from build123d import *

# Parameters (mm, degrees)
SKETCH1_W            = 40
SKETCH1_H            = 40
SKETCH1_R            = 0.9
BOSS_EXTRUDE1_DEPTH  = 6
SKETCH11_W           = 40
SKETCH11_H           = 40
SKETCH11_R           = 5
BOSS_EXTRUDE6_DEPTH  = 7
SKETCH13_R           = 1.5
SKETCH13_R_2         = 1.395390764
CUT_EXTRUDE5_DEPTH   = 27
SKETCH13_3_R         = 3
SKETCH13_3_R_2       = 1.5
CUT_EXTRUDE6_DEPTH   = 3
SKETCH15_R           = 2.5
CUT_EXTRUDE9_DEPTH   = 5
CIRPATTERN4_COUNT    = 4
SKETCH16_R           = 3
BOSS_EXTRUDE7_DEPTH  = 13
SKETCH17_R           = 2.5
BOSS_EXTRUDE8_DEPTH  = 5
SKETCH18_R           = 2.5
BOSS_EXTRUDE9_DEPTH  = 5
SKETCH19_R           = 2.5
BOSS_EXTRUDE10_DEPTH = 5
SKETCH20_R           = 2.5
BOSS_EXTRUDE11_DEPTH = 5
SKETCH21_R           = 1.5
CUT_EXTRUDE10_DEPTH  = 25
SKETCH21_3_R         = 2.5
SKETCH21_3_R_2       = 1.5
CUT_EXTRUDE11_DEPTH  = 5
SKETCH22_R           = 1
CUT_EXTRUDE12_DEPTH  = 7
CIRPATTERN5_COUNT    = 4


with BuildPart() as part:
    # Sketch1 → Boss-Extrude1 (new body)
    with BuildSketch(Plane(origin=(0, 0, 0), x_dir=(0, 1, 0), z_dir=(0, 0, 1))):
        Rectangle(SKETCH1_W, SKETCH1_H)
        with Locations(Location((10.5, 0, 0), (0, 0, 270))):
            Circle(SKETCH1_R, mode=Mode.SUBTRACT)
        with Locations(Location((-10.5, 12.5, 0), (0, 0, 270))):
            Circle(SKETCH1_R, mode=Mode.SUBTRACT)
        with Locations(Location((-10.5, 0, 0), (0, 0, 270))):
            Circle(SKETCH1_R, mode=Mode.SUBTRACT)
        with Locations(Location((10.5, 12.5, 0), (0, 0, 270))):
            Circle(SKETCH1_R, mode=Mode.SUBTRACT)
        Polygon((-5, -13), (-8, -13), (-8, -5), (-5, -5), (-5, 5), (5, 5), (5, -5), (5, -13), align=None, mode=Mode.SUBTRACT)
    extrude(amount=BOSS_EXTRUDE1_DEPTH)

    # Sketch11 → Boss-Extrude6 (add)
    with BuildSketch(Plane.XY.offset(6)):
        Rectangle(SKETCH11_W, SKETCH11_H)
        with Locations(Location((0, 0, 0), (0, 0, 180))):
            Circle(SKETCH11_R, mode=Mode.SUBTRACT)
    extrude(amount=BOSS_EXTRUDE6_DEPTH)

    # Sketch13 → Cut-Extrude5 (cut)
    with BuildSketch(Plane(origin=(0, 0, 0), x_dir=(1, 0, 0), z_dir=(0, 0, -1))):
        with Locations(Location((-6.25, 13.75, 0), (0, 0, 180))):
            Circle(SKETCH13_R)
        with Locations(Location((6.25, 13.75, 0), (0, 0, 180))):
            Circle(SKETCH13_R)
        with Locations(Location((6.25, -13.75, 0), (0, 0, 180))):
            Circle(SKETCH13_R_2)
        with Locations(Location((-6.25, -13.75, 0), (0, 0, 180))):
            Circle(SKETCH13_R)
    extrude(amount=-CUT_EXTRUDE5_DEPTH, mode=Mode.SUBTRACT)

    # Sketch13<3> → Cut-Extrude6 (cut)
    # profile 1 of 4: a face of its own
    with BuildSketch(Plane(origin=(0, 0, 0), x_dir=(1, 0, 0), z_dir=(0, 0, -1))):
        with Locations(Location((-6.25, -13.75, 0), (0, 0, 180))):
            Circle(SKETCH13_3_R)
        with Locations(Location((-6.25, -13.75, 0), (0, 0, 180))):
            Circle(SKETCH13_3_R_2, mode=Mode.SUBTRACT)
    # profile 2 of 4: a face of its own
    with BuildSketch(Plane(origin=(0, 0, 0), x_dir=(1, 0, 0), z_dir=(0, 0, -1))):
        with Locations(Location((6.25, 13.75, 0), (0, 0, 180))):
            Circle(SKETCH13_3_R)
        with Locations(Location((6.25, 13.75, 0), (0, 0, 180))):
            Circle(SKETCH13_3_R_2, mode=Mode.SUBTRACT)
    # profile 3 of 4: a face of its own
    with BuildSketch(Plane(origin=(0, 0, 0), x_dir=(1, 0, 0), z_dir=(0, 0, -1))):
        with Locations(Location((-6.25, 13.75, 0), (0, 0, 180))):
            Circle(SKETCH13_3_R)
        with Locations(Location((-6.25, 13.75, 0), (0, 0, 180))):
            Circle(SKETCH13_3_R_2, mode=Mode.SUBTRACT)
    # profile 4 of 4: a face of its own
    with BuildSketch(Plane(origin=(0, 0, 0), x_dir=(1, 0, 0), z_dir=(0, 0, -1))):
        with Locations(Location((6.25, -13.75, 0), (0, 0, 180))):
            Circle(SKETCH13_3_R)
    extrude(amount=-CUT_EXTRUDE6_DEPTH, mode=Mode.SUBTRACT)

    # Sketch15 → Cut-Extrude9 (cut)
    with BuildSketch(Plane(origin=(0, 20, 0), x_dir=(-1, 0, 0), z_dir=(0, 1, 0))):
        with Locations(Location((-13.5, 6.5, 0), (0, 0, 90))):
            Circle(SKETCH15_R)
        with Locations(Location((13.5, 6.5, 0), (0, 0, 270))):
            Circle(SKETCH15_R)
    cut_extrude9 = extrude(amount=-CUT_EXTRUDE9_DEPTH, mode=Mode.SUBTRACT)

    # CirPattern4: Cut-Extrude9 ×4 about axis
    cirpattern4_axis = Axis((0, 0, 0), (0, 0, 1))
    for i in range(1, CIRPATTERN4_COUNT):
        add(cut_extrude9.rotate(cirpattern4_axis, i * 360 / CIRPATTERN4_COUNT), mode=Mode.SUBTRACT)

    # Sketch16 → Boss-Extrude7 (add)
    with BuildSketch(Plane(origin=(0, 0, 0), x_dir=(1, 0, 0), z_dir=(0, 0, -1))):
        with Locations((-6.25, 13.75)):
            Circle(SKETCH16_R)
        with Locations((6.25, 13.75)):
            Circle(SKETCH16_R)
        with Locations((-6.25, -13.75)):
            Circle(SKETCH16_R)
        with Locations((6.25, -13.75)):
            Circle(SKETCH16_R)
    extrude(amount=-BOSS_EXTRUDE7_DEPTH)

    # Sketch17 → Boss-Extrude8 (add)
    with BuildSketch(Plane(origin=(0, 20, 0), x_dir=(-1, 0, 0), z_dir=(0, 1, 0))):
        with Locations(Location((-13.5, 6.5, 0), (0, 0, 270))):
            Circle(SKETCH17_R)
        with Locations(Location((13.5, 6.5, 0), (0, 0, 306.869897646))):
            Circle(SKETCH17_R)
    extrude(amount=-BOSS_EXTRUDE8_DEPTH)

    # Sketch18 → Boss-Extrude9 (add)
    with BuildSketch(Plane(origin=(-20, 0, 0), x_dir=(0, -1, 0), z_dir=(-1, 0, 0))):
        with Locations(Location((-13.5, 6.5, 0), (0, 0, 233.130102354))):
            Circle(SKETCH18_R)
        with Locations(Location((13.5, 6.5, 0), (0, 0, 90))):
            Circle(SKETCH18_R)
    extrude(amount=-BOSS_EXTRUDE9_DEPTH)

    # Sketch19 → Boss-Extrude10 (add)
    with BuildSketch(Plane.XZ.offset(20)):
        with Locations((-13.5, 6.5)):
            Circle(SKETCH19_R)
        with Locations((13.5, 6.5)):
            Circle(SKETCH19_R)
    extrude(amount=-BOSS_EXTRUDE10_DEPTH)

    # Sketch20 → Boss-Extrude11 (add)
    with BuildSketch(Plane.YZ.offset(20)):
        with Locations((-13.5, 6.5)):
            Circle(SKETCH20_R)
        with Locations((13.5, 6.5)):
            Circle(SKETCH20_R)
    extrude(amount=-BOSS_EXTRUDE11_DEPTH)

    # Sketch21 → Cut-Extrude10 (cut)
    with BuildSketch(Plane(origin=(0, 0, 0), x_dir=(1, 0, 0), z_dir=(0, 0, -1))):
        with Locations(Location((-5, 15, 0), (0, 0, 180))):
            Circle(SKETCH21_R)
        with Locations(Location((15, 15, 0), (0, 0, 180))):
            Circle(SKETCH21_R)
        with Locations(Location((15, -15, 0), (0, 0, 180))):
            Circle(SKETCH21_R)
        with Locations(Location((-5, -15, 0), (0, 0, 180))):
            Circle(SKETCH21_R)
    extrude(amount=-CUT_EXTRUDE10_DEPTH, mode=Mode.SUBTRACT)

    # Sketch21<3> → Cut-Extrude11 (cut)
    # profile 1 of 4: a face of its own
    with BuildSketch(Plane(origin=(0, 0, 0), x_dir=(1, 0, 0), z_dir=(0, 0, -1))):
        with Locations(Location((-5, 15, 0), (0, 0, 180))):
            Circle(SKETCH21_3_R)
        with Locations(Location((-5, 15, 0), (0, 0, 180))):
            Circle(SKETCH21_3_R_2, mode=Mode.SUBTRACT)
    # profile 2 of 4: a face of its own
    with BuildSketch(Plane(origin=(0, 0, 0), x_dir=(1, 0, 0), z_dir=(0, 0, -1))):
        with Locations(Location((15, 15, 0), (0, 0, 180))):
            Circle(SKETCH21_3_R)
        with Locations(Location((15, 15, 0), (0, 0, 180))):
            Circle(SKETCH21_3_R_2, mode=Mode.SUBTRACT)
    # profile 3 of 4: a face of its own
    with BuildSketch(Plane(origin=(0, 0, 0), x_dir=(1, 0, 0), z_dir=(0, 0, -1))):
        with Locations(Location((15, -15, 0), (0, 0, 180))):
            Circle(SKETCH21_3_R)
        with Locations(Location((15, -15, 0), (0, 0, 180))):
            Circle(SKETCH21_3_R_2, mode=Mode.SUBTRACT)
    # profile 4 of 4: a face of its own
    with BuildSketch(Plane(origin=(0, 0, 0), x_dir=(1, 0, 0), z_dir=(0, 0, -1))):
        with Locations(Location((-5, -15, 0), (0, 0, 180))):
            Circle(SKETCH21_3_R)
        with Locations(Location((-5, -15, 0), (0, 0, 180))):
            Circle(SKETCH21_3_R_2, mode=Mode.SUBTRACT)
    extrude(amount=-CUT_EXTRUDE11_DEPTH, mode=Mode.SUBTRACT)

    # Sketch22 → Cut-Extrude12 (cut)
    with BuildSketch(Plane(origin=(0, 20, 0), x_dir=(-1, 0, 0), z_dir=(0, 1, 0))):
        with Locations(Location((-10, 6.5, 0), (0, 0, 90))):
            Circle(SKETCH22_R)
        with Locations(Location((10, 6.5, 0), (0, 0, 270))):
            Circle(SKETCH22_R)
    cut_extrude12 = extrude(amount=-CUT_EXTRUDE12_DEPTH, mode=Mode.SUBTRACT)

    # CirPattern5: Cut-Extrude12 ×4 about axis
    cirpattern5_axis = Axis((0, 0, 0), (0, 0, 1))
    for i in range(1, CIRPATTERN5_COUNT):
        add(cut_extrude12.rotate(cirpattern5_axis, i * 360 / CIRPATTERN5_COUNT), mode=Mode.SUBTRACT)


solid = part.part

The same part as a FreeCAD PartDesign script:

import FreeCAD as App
import Part
import Sketcher
from FreeCAD import Vector

doc = App.newDocument("Part")
body = doc.addObject("PartDesign::Body", "Body")

sketch1 = body.newObject("Sketcher::SketchObject", "Sketch")
sketch1.AttachmentSupport = (doc.getObject("XY_Plane"), [""])
sketch1.MapMode = "FlatFace"
sketch1.addGeometry([
    Part.LineSegment(Vector(-20, -20, 0), Vector(20, -20, 0)),
    Part.LineSegment(Vector(20, -20, 0), Vector(20, 20, 0)),
    Part.LineSegment(Vector(20, 20, 0), Vector(-20, 20, 0)),
    Part.LineSegment(Vector(-20, 20, 0), Vector(-20, -20, 0)),
    Part.Circle(Vector(0, -10.5, 0), Vector(0, 0, 1), 0.9),
    Part.LineSegment(Vector(13, 5, 0), Vector(13, -8, 0)),
    Part.LineSegment(Vector(13, -8, 0), Vector(5, -8, 0)),
    Part.LineSegment(Vector(5, -8, 0), Vector(5, -5, 0)),
    Part.LineSegment(Vector(5, -5, 0), Vector(-5, -5, 0)),
    Part.LineSegment(Vector(-5, -5, 0), Vector(-5, 5, 0)),
    Part.LineSegment(Vector(-5, 5, 0), Vector(13, 5, 0)),
    Part.Circle(Vector(0, 10.5, 0), Vector(0, 0, 1), 0.9),
    Part.Circle(Vector(-12.5, -10.5, 0), Vector(0, 0, 1), 0.9),
    Part.Circle(Vector(-12.5, 10.5, 0), Vector(0, 0, 1), 0.9),
], False)
sketch1.addConstraint([
    Sketcher.Constraint("Coincident", 0, 2, 1, 1),
    Sketcher.Constraint("Coincident", 1, 2, 2, 1),
    Sketcher.Constraint("Coincident", 2, 2, 3, 1),
    Sketcher.Constraint("Coincident", 3, 2, 0, 1),
    Sketcher.Constraint("Coincident", 5, 2, 6, 1),
    Sketcher.Constraint("Coincident", 6, 2, 7, 1),
    Sketcher.Constraint("Coincident", 7, 2, 8, 1),
    Sketcher.Constraint("Coincident", 8, 2, 9, 1),
    Sketcher.Constraint("Coincident", 9, 2, 10, 1),
    Sketcher.Constraint("Coincident", 10, 2, 5, 1),
    Sketcher.Constraint("Horizontal", 0),
    Sketcher.Constraint("Vertical", 1),
    Sketcher.Constraint("Horizontal", 2),
    Sketcher.Constraint("Vertical", 3),
    Sketcher.Constraint("Vertical", 5),
    Sketcher.Constraint("Horizontal", 6),
    Sketcher.Constraint("Vertical", 7),
    Sketcher.Constraint("Horizontal", 8),
    Sketcher.Constraint("Vertical", 9),
    Sketcher.Constraint("Horizontal", 10),
    Sketcher.Constraint("Equal", 4, 11),
    Sketcher.Constraint("Equal", 11, 12),
    Sketcher.Constraint("Equal", 12, 13),
    Sketcher.Constraint("Symmetric", 4, 3, 11, 3, -1, 1),
    Sketcher.Constraint("Symmetric", 0, 2, 2, 2, -1, 1),
    Sketcher.Constraint("Symmetric", 7, 2, 9, 2, -1, 1),
    Sketcher.Constraint("Symmetric", 12, 3, 13, 3, -1),
    Sketcher.Constraint("PointOnObject", 4, 3, -2),
    Sketcher.Constraint("Horizontal", 4, 3, 12, 3),
    Sketcher.Constraint("Equal", 2, 1),
    Sketcher.Constraint("Equal", 8, 9),
    Sketcher.Constraint("Diameter", 4, 1.8),
    Sketcher.Constraint("DistanceX", 0, 1, 0, 2, 40.0),
    Sketcher.Constraint("DistanceX", 6, 2, 6, 1, 8.0),
    Sketcher.Constraint("DistanceX", 8, 2, 8, 1, 10.0),
    Sketcher.Constraint("DistanceY", 5, 2, 5, 1, 13.0),
    Sketcher.Constraint("DistanceY", 4, 3, 11, 3, 21.0),
    Sketcher.Constraint("DistanceX", 12, 3, -1, 1, 12.5),
])
pad1 = body.newObject("PartDesign::Pad", "Pad")
pad1.Profile = sketch1
pad1.Length = 6

sketch2 = body.newObject("Sketcher::SketchObject", "Sketch001")
sketch2.AttachmentSupport = (doc.getObject("XY_Plane"), [""])
sketch2.MapMode = "FlatFace"
sketch2.AttachmentOffset = App.Placement(Vector(0, 0, 6), App.Rotation())
sketch2.addGeometry([
    Part.LineSegment(Vector(-20, 20, 0), Vector(-20, -20, 0)),
    Part.LineSegment(Vector(-20, -20, 0), Vector(20, -20, 0)),
    Part.LineSegment(Vector(20, -20, 0), Vector(20, 20, 0)),
    Part.LineSegment(Vector(20, 20, 0), Vector(-20, 20, 0)),
    Part.Circle(Vector(0, 0, 0), Vector(0, 0, 1), 5),
], False)
sketch2.addConstraint([
    Sketcher.Constraint("Coincident", 0, 2, 1, 1),
    Sketcher.Constraint("Coincident", 1, 2, 2, 1),
    Sketcher.Constraint("Coincident", 2, 2, 3, 1),
    Sketcher.Constraint("Coincident", 3, 2, 0, 1),
    Sketcher.Constraint("Vertical", 0),
    Sketcher.Constraint("Horizontal", 1),
    Sketcher.Constraint("Vertical", 2),
    Sketcher.Constraint("Horizontal", 3),
    Sketcher.Constraint("Coincident", 4, 3, -1, 1),
    Sketcher.Constraint("Symmetric", 0, 2, 2, 2, -1, 1),
    Sketcher.Constraint("Equal", 3, 0),
    Sketcher.Constraint("Diameter", 4, 10.0),
    Sketcher.Constraint("DistanceX", 1, 1, 1, 2, 40.0),
])
pad2 = body.newObject("PartDesign::Pad", "Pad001")
pad2.Profile = sketch2
pad2.Length = 7

sketch3 = body.newObject("Sketcher::SketchObject", "Sketch002")
sketch3.AttachmentSupport = (doc.getObject("XY_Plane"), [""])
sketch3.MapMode = "FlatFace"
sketch3.addGeometry([
    Part.Circle(Vector(-6.2, -13.8, 0), Vector(0, 0, 1), 1.5),
    Part.Circle(Vector(6.2, -13.8, 0), Vector(0, 0, 1), 1.5),
    Part.Circle(Vector(6.2, 13.8, 0), Vector(0, 0, 1), 1.4),
    Part.Circle(Vector(-6.2, 13.8, 0), Vector(0, 0, 1), 1.5),
], False)
sketch3.addConstraint([
    Sketcher.Constraint("Equal", 0, 1),
    Sketcher.Constraint("Equal", 1, 3),
    Sketcher.Constraint("Symmetric", 0, 3, 2, 3, -1, 1),
    Sketcher.Constraint("Symmetric", 1, 3, 3, 3, -1, 1),
    Sketcher.Constraint("Symmetric", 0, 3, 1, 3, -2),
    Sketcher.Constraint("Diameter", 0, 3.0),
    Sketcher.Constraint("DistanceX", 0, 3, 1, 3, 12.5),
    Sketcher.Constraint("DistanceY", 1, 3, 2, 3, 27.5),
    Sketcher.Constraint("Diameter", 2, 2.790782),
])
pocket1 = body.newObject("PartDesign::Pocket", "Pocket")
pocket1.Profile = sketch3
pocket1.Length = 27
pocket1.Reversed = True

sketch4 = body.newObject("Sketcher::SketchObject", "Sketch003")
sketch4.AttachmentSupport = (doc.getObject("XY_Plane"), [""])
sketch4.MapMode = "FlatFace"
sketch4.addGeometry([
    Part.Circle(Vector(-6.2, 13.8, 0), Vector(0, 0, 1), 3),
    Part.Circle(Vector(-6.2, 13.8, 0), Vector(0, 0, 1), 1.5),
    Part.Circle(Vector(6.2, -13.8, 0), Vector(0, 0, 1), 3),
    Part.Circle(Vector(6.2, -13.8, 0), Vector(0, 0, 1), 1.5),
    Part.Circle(Vector(-6.2, -13.8, 0), Vector(0, 0, 1), 3),
    Part.Circle(Vector(-6.2, -13.8, 0), Vector(0, 0, 1), 1.5),
    Part.Circle(Vector(6.2, 13.8, 0), Vector(0, 0, 1), 3),
], False)
sketch4.addConstraint([
    Sketcher.Constraint("Coincident", 1, 3, 0, 3),
    Sketcher.Constraint("Coincident", 3, 3, 2, 3),
    Sketcher.Constraint("Coincident", 5, 3, 4, 3),
    Sketcher.Constraint("Equal", 0, 2),
    Sketcher.Constraint("Equal", 1, 3),
    Sketcher.Constraint("Equal", 2, 4),
    Sketcher.Constraint("Equal", 3, 5),
    Sketcher.Constraint("Equal", 4, 6),
    Sketcher.Constraint("Symmetric", 0, 3, 2, 3, -1, 1),
    Sketcher.Constraint("Symmetric", 4, 3, 6, 3, -1, 1),
    Sketcher.Constraint("Symmetric", 2, 3, 4, 3, -2),
    Sketcher.Constraint("Diameter", 0, 6.0),
    Sketcher.Constraint("Diameter", 1, 3.0),
    Sketcher.Constraint("DistanceX", 0, 3, 2, 3, 12.5),
    Sketcher.Constraint("DistanceY", 2, 3, 0, 3, 27.5),
])
pocket2 = body.newObject("PartDesign::Pocket", "Pocket001")
pocket2.Profile = sketch4
pocket2.Length = 3
pocket2.Reversed = True

sketch5 = body.newObject("Sketcher::SketchObject", "Sketch004")
sketch5.AttachmentSupport = (doc.getObject("XZ_Plane"), [""])
sketch5.MapMode = "FlatFace"
sketch5.AttachmentOffset = App.Placement(Vector(0, 0, -20), App.Rotation())
sketch5.addGeometry([
    Part.Circle(Vector(13.5, 6.5, 0), Vector(0, 0, 1), 2.5),
    Part.Circle(Vector(-13.5, 6.5, 0), Vector(0, 0, 1), 2.5),
], False)
sketch5.addConstraint([
    Sketcher.Constraint("Equal", 0, 1),
    Sketcher.Constraint("Symmetric", 0, 3, 1, 3, -2),
    Sketcher.Constraint("Diameter", 0, 5.0),
    Sketcher.Constraint("DistanceX", 1, 3, 0, 3, 27.0),
    Sketcher.Constraint("DistanceY", -1, 1, 0, 3, 6.5),
])
pocket3 = body.newObject("PartDesign::Pocket", "Pocket002")
pocket3.Profile = sketch5
pocket3.Length = 5
pocket3.Reversed = True
doc.recompute()

polarpattern = body.newObject("PartDesign::PolarPattern", "PolarPattern")
polarpattern.Originals = [pocket3]
polarpattern.Axis = (doc.getObject("Z_Axis"), [""])
polarpattern.Angle = 360
polarpattern.Occurrences = 4
body.Tip = polarpattern

sketch6 = body.newObject("Sketcher::SketchObject", "Sketch005")
sketch6.AttachmentSupport = (doc.getObject("XY_Plane"), [""])
sketch6.MapMode = "FlatFace"
sketch6.addGeometry([
    Part.Circle(Vector(-6.2, -13.8, 0), Vector(0, 0, 1), 3),
    Part.Circle(Vector(6.2, -13.8, 0), Vector(0, 0, 1), 3),
    Part.Circle(Vector(-6.2, 13.8, 0), Vector(0, 0, 1), 3),
    Part.Circle(Vector(6.2, 13.8, 0), Vector(0, 0, 1), 3),
], False)
sketch6.addConstraint([
    Sketcher.Constraint("Equal", 0, 1),
    Sketcher.Constraint("Equal", 1, 2),
    Sketcher.Constraint("Equal", 2, 3),
    Sketcher.Constraint("Symmetric", 1, 3, 2, 3, -1, 1),
    Sketcher.Constraint("Symmetric", 0, 3, 3, 3, -1, 1),
    Sketcher.Constraint("Symmetric", 0, 3, 1, 3, -2),
    Sketcher.Constraint("Diameter", 0, 6.0),
    Sketcher.Constraint("DistanceX", 0, 3, 1, 3, 12.5),
    Sketcher.Constraint("DistanceY", 0, 3, 2, 3, 27.5),
])
pad3 = body.newObject("PartDesign::Pad", "Pad002")
pad3.Profile = sketch6
pad3.Length = 13

sketch7 = body.newObject("Sketcher::SketchObject", "Sketch006")
sketch7.AttachmentSupport = (doc.getObject("XZ_Plane"), [""])
sketch7.MapMode = "FlatFace"
sketch7.AttachmentOffset = App.Placement(Vector(0, 0, -20), App.Rotation())
sketch7.addGeometry([
    Part.Circle(Vector(13.5, 6.5, 0), Vector(0, 0, 1), 2.5),
    Part.Circle(Vector(-13.5, 6.5, 0), Vector(0, 0, 1), 2.5),
], False)
sketch7.addConstraint([
    Sketcher.Constraint("Equal", 0, 1),
    Sketcher.Constraint("Symmetric", 0, 3, 1, 3, -2),
    Sketcher.Constraint("Diameter", 0, 5.0),
    Sketcher.Constraint("DistanceX", 1, 3, 0, 3, 27.0),
    Sketcher.Constraint("DistanceY", -1, 1, 0, 3, 6.5),
])
pad4 = body.newObject("PartDesign::Pad", "Pad003")
pad4.Profile = sketch7
pad4.Length = 5

sketch8 = body.newObject("Sketcher::SketchObject", "Sketch007")
sketch8.AttachmentSupport = (doc.getObject("YZ_Plane"), [""])
sketch8.MapMode = "FlatFace"
sketch8.AttachmentOffset = App.Placement(Vector(0, 0, -20), App.Rotation())
sketch8.addGeometry([
    Part.Circle(Vector(13.5, 6.5, 0), Vector(0, 0, 1), 2.5),
    Part.Circle(Vector(-13.5, 6.5, 0), Vector(0, 0, 1), 2.5),
], False)
sketch8.addConstraint([
    Sketcher.Constraint("Equal", 0, 1),
    Sketcher.Constraint("Symmetric", 0, 3, 1, 3, -2),
    Sketcher.Constraint("Diameter", 0, 5.0),
    Sketcher.Constraint("DistanceX", 1, 3, 0, 3, 27.0),
    Sketcher.Constraint("DistanceY", -1, 1, 0, 3, 6.5),
])
pad5 = body.newObject("PartDesign::Pad", "Pad004")
pad5.Profile = sketch8
pad5.Length = 5

sketch9 = body.newObject("Sketcher::SketchObject", "Sketch008")
sketch9.AttachmentSupport = (doc.getObject("XZ_Plane"), [""])
sketch9.MapMode = "FlatFace"
sketch9.AttachmentOffset = App.Placement(Vector(0, 0, 20), App.Rotation())
sketch9.addGeometry([
    Part.Circle(Vector(-13.5, 6.5, 0), Vector(0, 0, 1), 2.5),
    Part.Circle(Vector(13.5, 6.5, 0), Vector(0, 0, 1), 2.5),
], False)
sketch9.addConstraint([
    Sketcher.Constraint("Equal", 0, 1),
    Sketcher.Constraint("Symmetric", 0, 3, 1, 3, -2),
    Sketcher.Constraint("Diameter", 0, 5.0),
    Sketcher.Constraint("DistanceX", 0, 3, 1, 3, 27.0),
    Sketcher.Constraint("DistanceY", -1, 1, 0, 3, 6.5),
])
pad6 = body.newObject("PartDesign::Pad", "Pad005")
pad6.Profile = sketch9
pad6.Length = 5
pad6.Reversed = True

sketch10 = body.newObject("Sketcher::SketchObject", "Sketch009")
sketch10.AttachmentSupport = (doc.getObject("YZ_Plane"), [""])
sketch10.MapMode = "FlatFace"
sketch10.AttachmentOffset = App.Placement(Vector(0, 0, 20), App.Rotation())
sketch10.addGeometry([
    Part.Circle(Vector(-13.5, 6.5, 0), Vector(0, 0, 1), 2.5),
    Part.Circle(Vector(13.5, 6.5, 0), Vector(0, 0, 1), 2.5),
], False)
sketch10.addConstraint([
    Sketcher.Constraint("Equal", 0, 1),
    Sketcher.Constraint("Symmetric", 0, 3, 1, 3, -2),
    Sketcher.Constraint("Diameter", 0, 5.0),
    Sketcher.Constraint("DistanceX", 0, 3, 1, 3, 27.0),
    Sketcher.Constraint("DistanceY", -1, 1, 0, 3, 6.5),
])
pad7 = body.newObject("PartDesign::Pad", "Pad006")
pad7.Profile = sketch10
pad7.Length = 5
pad7.Reversed = True

sketch11 = body.newObject("Sketcher::SketchObject", "Sketch010")
sketch11.AttachmentSupport = (doc.getObject("XY_Plane"), [""])
sketch11.MapMode = "FlatFace"
sketch11.addGeometry([
    Part.Circle(Vector(-5, -15, 0), Vector(0, 0, 1), 1.5),
    Part.Circle(Vector(15, -15, 0), Vector(0, 0, 1), 1.5),
    Part.Circle(Vector(15, 15, 0), Vector(0, 0, 1), 1.5),
    Part.Circle(Vector(-5, 15, 0), Vector(0, 0, 1), 1.5),
], False)
sketch11.addConstraint([
    Sketcher.Constraint("Equal", 0, 1),
    Sketcher.Constraint("Equal", 1, 2),
    Sketcher.Constraint("Equal", 2, 3),
    Sketcher.Constraint("Symmetric", 1, 3, 2, 3, -1),
    Sketcher.Constraint("Symmetric", 0, 3, 3, 3, -1),
    Sketcher.Constraint("Horizontal", 0, 3, 1, 3),
    Sketcher.Constraint("Diameter", 0, 3.0),
    Sketcher.Constraint("DistanceX", 0, 3, -1, 1, 5.0),
    Sketcher.Constraint("DistanceY", 0, 3, -1, 1, 15.0),
    Sketcher.Constraint("DistanceX", -1, 1, 1, 3, 15.0),
])
pocket4 = body.newObject("PartDesign::Pocket", "Pocket003")
pocket4.Profile = sketch11
pocket4.Length = 25
pocket4.Reversed = True

sketch12 = body.newObject("Sketcher::SketchObject", "Sketch011")
sketch12.AttachmentSupport = (doc.getObject("XY_Plane"), [""])
sketch12.MapMode = "FlatFace"
sketch12.addGeometry([
    Part.Circle(Vector(-5, -15, 0), Vector(0, 0, 1), 2.5),
    Part.Circle(Vector(-5, -15, 0), Vector(0, 0, 1), 1.5),
    Part.Circle(Vector(15, -15, 0), Vector(0, 0, 1), 2.5),
    Part.Circle(Vector(15, -15, 0), Vector(0, 0, 1), 1.5),
    Part.Circle(Vector(15, 15, 0), Vector(0, 0, 1), 2.5),
    Part.Circle(Vector(15, 15, 0), Vector(0, 0, 1), 1.5),
    Part.Circle(Vector(-5, 15, 0), Vector(0, 0, 1), 2.5),
    Part.Circle(Vector(-5, 15, 0), Vector(0, 0, 1), 1.5),
], False)
sketch12.addConstraint([
    Sketcher.Constraint("Coincident", 1, 3, 0, 3),
    Sketcher.Constraint("Coincident", 3, 3, 2, 3),
    Sketcher.Constraint("Coincident", 5, 3, 4, 3),
    Sketcher.Constraint("Coincident", 7, 3, 6, 3),
    Sketcher.Constraint("Equal", 0, 2),
    Sketcher.Constraint("Equal", 1, 3),
    Sketcher.Constraint("Equal", 2, 4),
    Sketcher.Constraint("Equal", 3, 5),
    Sketcher.Constraint("Equal", 4, 6),
    Sketcher.Constraint("Equal", 5, 7),
    Sketcher.Constraint("Symmetric", 2, 3, 4, 3, -1),
    Sketcher.Constraint("Symmetric", 0, 3, 6, 3, -1),
    Sketcher.Constraint("Horizontal", 1, 3, 2, 3),
    Sketcher.Constraint("Diameter", 0, 5.0),
    Sketcher.Constraint("Diameter", 1, 3.0),
    Sketcher.Constraint("DistanceX", 0, 3, -1, 1, 5.0),
    Sketcher.Constraint("DistanceY", 0, 3, -1, 1, 15.0),
    Sketcher.Constraint("DistanceX", -1, 1, 2, 3, 15.0),
])
pocket5 = body.newObject("PartDesign::Pocket", "Pocket004")
pocket5.Profile = sketch12
pocket5.Length = 5
pocket5.Reversed = True

sketch13 = body.newObject("Sketcher::SketchObject", "Sketch012")
sketch13.AttachmentSupport = (doc.getObject("XZ_Plane"), [""])
sketch13.MapMode = "FlatFace"
sketch13.AttachmentOffset = App.Placement(Vector(0, 0, -20), App.Rotation())
sketch13.addGeometry([
    Part.Circle(Vector(10, 6.5, 0), Vector(0, 0, 1), 1),
    Part.Circle(Vector(-10, 6.5, 0), Vector(0, 0, 1), 1),
], False)
sketch13.addConstraint([
    Sketcher.Constraint("Equal", 0, 1),
    Sketcher.Constraint("Symmetric", 0, 3, 1, 3, -2),
    Sketcher.Constraint("Diameter", 0, 2.0),
    Sketcher.Constraint("DistanceX", -1, 1, 0, 3, 10.0),
    Sketcher.Constraint("DistanceY", -1, 1, 0, 3, 6.5),
])
pocket6 = body.newObject("PartDesign::Pocket", "Pocket005")
pocket6.Profile = sketch13
pocket6.Length = 7
pocket6.Reversed = True
doc.recompute()

polarpattern2 = body.newObject("PartDesign::PolarPattern", "PolarPattern001")
polarpattern2.Originals = [pocket6]
polarpattern2.Axis = (doc.getObject("Z_Axis"), [""])
polarpattern2.Angle = 360
polarpattern2.Occurrences = 4
body.Tip = polarpattern2

doc.recompute()
